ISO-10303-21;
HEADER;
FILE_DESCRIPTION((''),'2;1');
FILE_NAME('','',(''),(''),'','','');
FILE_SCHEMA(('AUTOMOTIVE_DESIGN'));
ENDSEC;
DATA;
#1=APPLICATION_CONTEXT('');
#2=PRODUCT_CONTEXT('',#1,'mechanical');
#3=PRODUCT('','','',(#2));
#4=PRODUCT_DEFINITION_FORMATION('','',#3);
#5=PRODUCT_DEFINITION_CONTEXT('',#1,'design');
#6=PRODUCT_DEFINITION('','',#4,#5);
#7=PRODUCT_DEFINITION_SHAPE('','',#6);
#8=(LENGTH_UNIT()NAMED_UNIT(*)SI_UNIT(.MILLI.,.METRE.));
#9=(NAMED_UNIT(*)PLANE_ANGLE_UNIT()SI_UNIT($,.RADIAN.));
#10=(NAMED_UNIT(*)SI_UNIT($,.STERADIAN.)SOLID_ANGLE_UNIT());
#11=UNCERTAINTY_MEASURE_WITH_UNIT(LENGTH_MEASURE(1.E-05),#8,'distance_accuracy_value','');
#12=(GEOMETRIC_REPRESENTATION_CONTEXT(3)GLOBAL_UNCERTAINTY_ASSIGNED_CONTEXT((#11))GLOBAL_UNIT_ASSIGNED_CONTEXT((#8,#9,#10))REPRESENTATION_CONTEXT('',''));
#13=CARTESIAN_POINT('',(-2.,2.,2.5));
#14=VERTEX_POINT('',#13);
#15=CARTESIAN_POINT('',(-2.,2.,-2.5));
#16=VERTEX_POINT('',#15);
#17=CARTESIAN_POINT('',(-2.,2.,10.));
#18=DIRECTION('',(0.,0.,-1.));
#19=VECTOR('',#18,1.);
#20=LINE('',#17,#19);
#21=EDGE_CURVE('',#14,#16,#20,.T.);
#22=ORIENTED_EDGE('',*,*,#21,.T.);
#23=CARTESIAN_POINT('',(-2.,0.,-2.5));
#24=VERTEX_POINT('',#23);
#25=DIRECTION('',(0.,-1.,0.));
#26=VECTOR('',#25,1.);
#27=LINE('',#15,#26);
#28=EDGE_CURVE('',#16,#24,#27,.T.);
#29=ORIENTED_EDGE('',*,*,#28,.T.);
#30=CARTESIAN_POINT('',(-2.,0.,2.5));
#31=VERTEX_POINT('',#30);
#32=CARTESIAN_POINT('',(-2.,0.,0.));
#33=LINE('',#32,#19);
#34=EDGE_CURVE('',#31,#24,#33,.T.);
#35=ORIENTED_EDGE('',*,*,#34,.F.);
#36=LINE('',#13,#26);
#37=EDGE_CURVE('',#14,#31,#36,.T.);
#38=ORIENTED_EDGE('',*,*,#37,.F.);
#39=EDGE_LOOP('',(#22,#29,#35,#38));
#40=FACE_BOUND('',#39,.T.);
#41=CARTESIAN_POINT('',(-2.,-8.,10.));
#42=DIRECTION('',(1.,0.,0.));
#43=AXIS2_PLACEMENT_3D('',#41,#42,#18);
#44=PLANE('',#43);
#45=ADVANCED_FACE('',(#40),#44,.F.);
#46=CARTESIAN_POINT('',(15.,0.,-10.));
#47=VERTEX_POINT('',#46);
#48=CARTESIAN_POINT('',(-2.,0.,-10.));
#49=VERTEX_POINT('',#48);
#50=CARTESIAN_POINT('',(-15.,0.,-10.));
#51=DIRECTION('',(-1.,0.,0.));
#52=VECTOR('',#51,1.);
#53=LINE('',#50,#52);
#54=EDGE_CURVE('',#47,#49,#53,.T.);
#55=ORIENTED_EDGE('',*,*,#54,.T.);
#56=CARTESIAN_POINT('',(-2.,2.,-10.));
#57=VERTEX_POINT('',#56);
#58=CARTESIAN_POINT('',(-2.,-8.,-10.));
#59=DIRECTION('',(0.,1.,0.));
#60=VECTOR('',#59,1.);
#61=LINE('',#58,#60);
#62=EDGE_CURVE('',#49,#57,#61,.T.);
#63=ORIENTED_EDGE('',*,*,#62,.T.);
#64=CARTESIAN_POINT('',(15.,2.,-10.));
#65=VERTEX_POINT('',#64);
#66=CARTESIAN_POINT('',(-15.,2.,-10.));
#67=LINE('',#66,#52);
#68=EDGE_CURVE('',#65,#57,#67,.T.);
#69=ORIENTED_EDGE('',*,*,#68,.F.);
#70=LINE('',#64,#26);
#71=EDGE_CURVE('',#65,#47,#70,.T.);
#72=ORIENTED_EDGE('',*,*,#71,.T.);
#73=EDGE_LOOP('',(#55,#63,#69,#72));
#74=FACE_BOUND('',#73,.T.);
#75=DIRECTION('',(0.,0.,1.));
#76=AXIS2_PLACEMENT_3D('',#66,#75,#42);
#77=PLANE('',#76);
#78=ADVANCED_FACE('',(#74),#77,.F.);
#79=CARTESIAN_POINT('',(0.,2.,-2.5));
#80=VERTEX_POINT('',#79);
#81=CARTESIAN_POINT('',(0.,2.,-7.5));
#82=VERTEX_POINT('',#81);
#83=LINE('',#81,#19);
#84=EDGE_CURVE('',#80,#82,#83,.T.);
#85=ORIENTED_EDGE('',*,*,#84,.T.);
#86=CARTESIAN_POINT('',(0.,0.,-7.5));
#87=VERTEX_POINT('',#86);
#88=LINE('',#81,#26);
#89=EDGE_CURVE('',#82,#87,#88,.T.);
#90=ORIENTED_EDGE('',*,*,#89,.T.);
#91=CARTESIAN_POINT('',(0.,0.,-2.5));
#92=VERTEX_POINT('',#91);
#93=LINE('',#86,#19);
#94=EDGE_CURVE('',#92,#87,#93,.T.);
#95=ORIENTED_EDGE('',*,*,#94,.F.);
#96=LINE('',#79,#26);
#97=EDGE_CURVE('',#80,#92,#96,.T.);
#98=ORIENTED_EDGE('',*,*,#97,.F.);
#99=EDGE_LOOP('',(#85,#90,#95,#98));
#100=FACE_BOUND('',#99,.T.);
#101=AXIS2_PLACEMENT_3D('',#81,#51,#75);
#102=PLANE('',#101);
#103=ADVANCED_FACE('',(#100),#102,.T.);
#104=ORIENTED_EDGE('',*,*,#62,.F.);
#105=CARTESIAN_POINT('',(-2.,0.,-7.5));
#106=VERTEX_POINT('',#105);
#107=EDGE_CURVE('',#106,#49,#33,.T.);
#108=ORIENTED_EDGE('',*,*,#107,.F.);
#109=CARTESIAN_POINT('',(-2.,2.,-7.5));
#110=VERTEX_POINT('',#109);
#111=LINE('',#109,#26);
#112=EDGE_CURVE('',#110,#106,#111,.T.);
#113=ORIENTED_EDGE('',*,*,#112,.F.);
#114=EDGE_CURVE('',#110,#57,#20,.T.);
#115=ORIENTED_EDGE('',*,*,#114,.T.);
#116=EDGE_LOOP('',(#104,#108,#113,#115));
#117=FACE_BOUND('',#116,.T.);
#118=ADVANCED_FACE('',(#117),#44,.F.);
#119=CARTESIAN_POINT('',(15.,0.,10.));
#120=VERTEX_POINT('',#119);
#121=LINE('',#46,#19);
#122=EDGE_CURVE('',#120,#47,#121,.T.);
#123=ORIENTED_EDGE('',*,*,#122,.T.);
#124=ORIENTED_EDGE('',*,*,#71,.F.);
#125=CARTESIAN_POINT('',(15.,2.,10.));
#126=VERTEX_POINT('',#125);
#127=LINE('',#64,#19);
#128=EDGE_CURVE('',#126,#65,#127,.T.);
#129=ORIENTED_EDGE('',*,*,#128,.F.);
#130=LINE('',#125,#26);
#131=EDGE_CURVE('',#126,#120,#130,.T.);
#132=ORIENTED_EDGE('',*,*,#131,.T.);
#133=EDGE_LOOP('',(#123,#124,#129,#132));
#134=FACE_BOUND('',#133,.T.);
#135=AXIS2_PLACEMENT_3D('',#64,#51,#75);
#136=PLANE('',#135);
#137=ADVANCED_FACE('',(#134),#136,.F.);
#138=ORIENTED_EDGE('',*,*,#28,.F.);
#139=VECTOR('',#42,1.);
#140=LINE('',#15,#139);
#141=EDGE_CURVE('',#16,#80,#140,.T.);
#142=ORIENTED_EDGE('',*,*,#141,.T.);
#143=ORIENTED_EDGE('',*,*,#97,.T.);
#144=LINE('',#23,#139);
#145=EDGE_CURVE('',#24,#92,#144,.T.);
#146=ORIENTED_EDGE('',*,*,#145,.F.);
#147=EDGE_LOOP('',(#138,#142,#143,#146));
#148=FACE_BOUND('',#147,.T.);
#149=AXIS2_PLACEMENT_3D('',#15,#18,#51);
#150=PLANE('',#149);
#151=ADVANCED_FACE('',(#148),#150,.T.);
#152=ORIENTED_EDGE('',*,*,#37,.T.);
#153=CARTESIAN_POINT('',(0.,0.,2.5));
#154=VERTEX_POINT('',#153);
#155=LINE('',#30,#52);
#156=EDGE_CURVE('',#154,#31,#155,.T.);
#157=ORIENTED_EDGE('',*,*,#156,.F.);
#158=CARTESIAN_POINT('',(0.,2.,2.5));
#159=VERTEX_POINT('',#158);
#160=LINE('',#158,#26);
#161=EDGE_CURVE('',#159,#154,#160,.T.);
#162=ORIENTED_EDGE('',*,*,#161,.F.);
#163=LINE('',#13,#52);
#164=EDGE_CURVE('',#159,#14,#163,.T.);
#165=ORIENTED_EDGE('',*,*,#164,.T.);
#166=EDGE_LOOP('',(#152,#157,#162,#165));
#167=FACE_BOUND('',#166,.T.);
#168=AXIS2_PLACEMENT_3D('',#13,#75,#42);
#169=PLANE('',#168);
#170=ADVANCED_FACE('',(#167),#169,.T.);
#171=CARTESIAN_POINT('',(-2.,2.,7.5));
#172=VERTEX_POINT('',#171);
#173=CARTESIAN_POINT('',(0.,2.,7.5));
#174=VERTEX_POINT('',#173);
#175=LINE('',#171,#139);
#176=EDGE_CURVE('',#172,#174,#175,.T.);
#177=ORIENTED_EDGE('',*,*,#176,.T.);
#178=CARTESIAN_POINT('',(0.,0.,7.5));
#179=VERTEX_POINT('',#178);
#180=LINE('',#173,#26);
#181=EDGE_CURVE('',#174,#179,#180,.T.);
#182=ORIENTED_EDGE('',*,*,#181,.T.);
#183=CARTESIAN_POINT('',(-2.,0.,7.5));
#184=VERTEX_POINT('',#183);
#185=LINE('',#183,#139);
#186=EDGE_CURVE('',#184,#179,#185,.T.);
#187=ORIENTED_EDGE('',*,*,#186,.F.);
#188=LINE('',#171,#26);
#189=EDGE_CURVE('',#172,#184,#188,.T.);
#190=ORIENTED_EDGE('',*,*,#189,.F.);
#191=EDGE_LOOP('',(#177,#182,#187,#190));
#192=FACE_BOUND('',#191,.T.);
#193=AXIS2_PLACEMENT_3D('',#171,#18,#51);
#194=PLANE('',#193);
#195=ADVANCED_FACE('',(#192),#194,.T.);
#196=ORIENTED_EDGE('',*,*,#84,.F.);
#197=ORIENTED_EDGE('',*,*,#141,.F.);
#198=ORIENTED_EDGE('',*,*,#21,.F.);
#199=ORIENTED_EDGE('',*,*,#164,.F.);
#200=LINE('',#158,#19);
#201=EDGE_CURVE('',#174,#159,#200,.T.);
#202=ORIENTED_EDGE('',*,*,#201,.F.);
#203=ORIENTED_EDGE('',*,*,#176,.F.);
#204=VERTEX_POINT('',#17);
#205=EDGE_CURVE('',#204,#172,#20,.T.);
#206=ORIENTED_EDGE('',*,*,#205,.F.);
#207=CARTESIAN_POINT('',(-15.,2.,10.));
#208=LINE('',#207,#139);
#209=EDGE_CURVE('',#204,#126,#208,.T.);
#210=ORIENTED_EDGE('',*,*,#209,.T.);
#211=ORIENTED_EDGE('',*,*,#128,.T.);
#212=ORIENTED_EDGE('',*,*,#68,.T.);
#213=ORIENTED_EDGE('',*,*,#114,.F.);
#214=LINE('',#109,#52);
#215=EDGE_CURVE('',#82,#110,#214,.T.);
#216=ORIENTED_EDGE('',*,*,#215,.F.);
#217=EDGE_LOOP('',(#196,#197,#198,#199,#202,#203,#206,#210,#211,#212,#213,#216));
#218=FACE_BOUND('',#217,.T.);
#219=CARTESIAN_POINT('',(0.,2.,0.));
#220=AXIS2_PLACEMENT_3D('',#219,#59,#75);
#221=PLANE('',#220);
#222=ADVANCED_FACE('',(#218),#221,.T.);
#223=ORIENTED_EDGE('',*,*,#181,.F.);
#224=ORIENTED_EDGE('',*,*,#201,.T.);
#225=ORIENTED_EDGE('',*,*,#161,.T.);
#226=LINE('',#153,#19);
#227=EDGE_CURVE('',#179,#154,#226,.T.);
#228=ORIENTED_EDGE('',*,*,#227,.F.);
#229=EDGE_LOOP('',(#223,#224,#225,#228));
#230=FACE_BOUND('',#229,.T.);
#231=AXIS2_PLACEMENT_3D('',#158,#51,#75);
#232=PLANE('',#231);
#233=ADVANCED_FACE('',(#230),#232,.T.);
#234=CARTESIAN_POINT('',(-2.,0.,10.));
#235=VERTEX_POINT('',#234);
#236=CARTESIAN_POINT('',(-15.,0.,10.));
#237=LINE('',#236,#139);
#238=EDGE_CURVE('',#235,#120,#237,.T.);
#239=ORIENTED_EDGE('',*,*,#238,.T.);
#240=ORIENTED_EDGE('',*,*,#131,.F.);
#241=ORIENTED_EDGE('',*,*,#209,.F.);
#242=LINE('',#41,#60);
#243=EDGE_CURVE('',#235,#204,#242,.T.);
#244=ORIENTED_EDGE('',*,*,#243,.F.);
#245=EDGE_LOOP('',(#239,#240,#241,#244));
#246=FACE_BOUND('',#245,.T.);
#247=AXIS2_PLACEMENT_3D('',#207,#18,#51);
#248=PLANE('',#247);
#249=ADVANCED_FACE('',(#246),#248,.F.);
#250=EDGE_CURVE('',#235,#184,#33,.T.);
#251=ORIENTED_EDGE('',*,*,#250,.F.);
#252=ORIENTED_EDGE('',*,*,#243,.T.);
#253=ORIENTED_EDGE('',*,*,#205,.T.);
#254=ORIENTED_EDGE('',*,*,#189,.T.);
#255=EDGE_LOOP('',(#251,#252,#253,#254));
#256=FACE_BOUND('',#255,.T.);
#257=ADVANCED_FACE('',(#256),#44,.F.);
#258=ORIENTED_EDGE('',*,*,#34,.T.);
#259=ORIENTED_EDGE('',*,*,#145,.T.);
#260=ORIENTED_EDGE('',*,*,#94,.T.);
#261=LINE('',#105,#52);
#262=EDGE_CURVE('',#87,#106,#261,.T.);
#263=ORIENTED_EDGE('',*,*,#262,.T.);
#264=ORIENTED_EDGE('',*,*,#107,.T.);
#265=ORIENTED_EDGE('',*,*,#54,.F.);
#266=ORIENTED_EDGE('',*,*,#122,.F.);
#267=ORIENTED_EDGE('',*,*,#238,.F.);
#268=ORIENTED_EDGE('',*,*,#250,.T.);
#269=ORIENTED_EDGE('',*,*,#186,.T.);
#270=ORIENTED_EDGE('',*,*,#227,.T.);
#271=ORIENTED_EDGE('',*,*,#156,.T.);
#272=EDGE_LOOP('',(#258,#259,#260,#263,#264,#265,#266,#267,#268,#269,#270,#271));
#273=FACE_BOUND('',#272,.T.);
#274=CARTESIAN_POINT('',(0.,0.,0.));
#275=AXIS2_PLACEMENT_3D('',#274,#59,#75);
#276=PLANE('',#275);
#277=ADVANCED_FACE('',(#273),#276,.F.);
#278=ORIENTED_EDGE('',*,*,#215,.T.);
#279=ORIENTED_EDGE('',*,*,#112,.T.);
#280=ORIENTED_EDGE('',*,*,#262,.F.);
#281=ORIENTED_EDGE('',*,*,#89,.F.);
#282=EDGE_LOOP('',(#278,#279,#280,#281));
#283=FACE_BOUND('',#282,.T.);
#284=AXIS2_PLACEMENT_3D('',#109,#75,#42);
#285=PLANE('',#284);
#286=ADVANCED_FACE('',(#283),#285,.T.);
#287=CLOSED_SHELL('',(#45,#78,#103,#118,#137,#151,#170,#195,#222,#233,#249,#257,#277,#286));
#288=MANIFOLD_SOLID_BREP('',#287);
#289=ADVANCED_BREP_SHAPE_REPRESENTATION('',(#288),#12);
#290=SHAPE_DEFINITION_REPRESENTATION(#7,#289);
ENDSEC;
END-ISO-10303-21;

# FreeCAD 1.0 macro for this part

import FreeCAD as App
import Part
import Sketcher


def add_polygon(sketch, points):
    """Adds a closed chain of lines whose ends are joined by coincident constraints."""
    first, n = sketch.GeometryCount, len(points)
    for a, b in zip(points, points[1:] + points[:1]):
        sketch.addGeometry(Part.LineSegment(App.Vector(*a, 0), App.Vector(*b, 0)), False)
    for i in range(n):
        sketch.addConstraint(Sketcher.Constraint("Coincident", first + i, 2, first + (i + 1) % n, 1))

doc = App.newDocument("Part")
body = doc.addObject("PartDesign::Body", "Body")

# Sketch on XZ plane
sketch1 = body.newObject("Sketcher::SketchObject", "Sketch")
sketch1.AttachmentSupport = (doc.getObject("XZ_Plane"), [""])
sketch1.MapMode = "FlatFace"
add_polygon(sketch1, [(-15, -10), (-15, 10), (15, 10), (15, -10)])  # lines 0-3
add_polygon(sketch1, [(0, 7.5), (-2, 7.5), (-2, 2.5), (0, 2.5)])  # lines 4-7
add_polygon(sketch1, [(0, -2.5), (-2, -2.5), (-2, -7.5), (0, -7.5)])  # lines 8-11
sketch1.addConstraint([
    Sketcher.Constraint("Vertical", 0),
    Sketcher.Constraint("Horizontal", 1),
    Sketcher.Constraint("Vertical", 2),
    Sketcher.Constraint("Horizontal", 3),
    Sketcher.Constraint("Horizontal", 4),
    Sketcher.Constraint("Vertical", 5),
    Sketcher.Constraint("Horizontal", 6),
    Sketcher.Constraint("Vertical", 7),
    Sketcher.Constraint("Horizontal", 8),
    Sketcher.Constraint("Vertical", 9),
    Sketcher.Constraint("Horizontal", 10),
    Sketcher.Constraint("Vertical", 11),
    Sketcher.Constraint("Symmetric", 0, 2, 2, 2, -1, 1),
    Sketcher.Constraint("Symmetric", 7, 2, 10, 2, -1, 1),
    Sketcher.Constraint("Symmetric", 5, 2, 8, 2, -1),
    Sketcher.Constraint("PointOnObject", 6, 2, -2),
    Sketcher.Constraint("DistanceX", 1, 1, 1, 2, 30.0),
    Sketcher.Constraint("DistanceX", 4, 2, 4, 1, 2.0),
    Sketcher.Constraint("DistanceY", 0, 1, 0, 2, 20.0),
    Sketcher.Constraint("DistanceY", 5, 2, 5, 1, 5.0),
    Sketcher.Constraint("DistanceY", 8, 2, 5, 2, 5.0),
])
pad1 = body.newObject("PartDesign::Pad", "Pad")
pad1.Profile = sketch1
pad1.Length = 2
pad1.Reversed = True

# Sketch on XZ plane
sketch2 = body.newObject("Sketcher::SketchObject", "Sketch001")
sketch2.AttachmentSupport = (doc.getObject("XZ_Plane"), [""])
sketch2.MapMode = "FlatFace"
sketch2.AttachmentOffset = App.Placement(App.Vector(0, 0, -2), App.Rotation())
sketch2.addGeometry([
    Part.Circle(App.Vector(-10, -5, 0), App.Vector(0, 0, 1), 1.5),
    Part.Circle(App.Vector(-10, 5, 0), App.Vector(0, 0, 1), 1.5),
], False)
sketch2.addConstraint([
    Sketcher.Constraint("Equal", 0, 1),
    Sketcher.Constraint("Symmetric", 0, 3, 1, 3, -1),
    Sketcher.Constraint("Diameter", 0, 3.0),
    Sketcher.Constraint("DistanceX", 0, 3, -1, 1, 10.0),
    Sketcher.Constraint("DistanceY", 0, 3, -1, 1, 5.0),
])
pocket1 = body.newObject("PartDesign::Pocket", "Pocket")
pocket1.Profile = sketch2
pocket1.Length = 10
pocket1.Reversed = True

# Sketch on XZ plane
sketch3 = body.newObject("Sketcher::SketchObject", "Sketch002")
sketch3.AttachmentSupport = (doc.getObject("XZ_Plane"), [""])
sketch3.MapMode = "FlatFace"
sketch3.AttachmentOffset = App.Placement(App.Vector(0, 0, -2), App.Rotation())
add_polygon(sketch3, [(-15, -10), (-15, 10), (-2, 10), (-2, -10)])  # lines 0-3
sketch3.addConstraint([
    Sketcher.Constraint("Vertical", 0),
    Sketcher.Constraint("Horizontal", 1),
    Sketcher.Constraint("Vertical", 2),
    Sketcher.Constraint("Horizontal", 3),
    Sketcher.Constraint("DistanceX", 1, 1, 1, 2, 13.0),
    Sketcher.Constraint("DistanceY", 0, 1, 0, 2, 20.0),
    Sketcher.Constraint("DistanceX", 0, 2, -1, 1, 15.0),
    Sketcher.Constraint("DistanceY", -1, 1, 0, 2, 10.0),
])
pocket2 = body.newObject("PartDesign::Pocket", "Pocket001")
pocket2.Profile = sketch3
pocket2.Length = 10
pocket2.Reversed = True

doc.recompute()
